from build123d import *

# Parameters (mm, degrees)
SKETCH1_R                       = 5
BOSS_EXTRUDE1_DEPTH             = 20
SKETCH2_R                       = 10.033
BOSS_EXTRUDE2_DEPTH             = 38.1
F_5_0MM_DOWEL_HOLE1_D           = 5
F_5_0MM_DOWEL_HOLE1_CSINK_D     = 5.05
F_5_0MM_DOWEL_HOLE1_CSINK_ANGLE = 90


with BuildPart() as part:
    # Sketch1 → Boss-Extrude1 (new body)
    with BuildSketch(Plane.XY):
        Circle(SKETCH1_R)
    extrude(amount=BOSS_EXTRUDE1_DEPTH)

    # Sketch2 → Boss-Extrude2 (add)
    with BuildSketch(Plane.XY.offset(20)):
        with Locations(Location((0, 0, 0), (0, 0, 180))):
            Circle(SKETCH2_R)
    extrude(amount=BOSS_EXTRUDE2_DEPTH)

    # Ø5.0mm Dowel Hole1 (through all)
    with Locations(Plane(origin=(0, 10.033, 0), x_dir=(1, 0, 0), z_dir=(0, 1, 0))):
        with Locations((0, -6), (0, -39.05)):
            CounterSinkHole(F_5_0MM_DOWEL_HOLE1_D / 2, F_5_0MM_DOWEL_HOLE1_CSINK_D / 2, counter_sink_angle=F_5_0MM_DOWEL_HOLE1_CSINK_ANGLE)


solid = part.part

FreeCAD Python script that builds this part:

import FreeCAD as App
import Part
import Sketcher

V = App.Vector
Q = App.Units.Quantity

doc = App.newDocument("Part")
body = doc.addObject("PartDesign::Body", "Body")

# Sketch on XY plane
sketch1 = body.newObject("Sketcher::SketchObject", "Sketch")
sketch1.AttachmentSupport = (doc.getObject("XY_Plane"), [""])
sketch1.MapMode = "FlatFace"
sketch1.addGeometry(Part.Circle(V(0, 0, 0), V(0, 0, 1), 5), False)
sketch1.addConstraint([
    Sketcher.Constraint("Coincident", 0, 3, -1, 1),
    Sketcher.Constraint("Diameter", 0, Q("10 mm")),
])
pad1 = body.newObject("PartDesign::Pad", "Pad")
pad1.Profile = sketch1
pad1.Length = 20

# Sketch on XY plane
sketch2 = body.newObject("Sketcher::SketchObject", "Sketch001")
sketch2.AttachmentSupport = (doc.getObject("XY_Plane"), [""])
sketch2.MapMode = "FlatFace"
sketch2.AttachmentOffset = App.Placement(V(0, 0, 20), App.Rotation())
sketch2.addGeometry(Part.Circle(V(0, 0, 0), V(0, 0, 1), 10), False)
sketch2.addConstraint([
    Sketcher.Constraint("Coincident", 0, 3, -1, 1),
    Sketcher.Constraint("Diameter", 0, Q("20.066 mm")),
])
pad2 = body.newObject("PartDesign::Pad", "Pad001")
pad2.Profile = sketch2
pad2.Length = 38.1

# Sketch on XZ plane
sketch3 = body.newObject("Sketcher::SketchObject", "Sketch002")
sketch3.AttachmentSupport = (doc.getObject("XZ_Plane"), [""])
sketch3.MapMode = "FlatFace"
sketch3.AttachmentOffset = App.Placement(V(0, 0, -10.033), App.Rotation())
sketch3.addGeometry([
    Part.Circle(V(0, 6, 0), V(0, 0, 1), 2.5),
    Part.Circle(V(0, 39, 0), V(0, 0, 1), 2.5),
], False)
sketch3.addConstraint([
    Sketcher.Constraint("Equal", 0, 1),
    Sketcher.Constraint("PointOnObject", 0, 3, -2),
    Sketcher.Constraint("PointOnObject", 1, 3, -2),
    Sketcher.Constraint("Diameter", 0, Q("5 mm")),
    Sketcher.Constraint("DistanceY", -1, 1, 0, 3, Q("6 mm")),
    Sketcher.Constraint("DistanceY", -1, 1, 1, 3, Q("39.05 mm")),
])
doc.recompute()
hole = body.newObject("PartDesign::Hole", "Hole")
hole.Profile = sketch3
hole.ThreadType = "None"
hole.Diameter = 5
hole.DepthType = "ThroughAll"
hole.HoleCutType = "Countersink"
hole.HoleCutDiameter = 5.05
hole.HoleCutCountersinkAngle = 90
hole.Reversed = True

doc.recompute()
